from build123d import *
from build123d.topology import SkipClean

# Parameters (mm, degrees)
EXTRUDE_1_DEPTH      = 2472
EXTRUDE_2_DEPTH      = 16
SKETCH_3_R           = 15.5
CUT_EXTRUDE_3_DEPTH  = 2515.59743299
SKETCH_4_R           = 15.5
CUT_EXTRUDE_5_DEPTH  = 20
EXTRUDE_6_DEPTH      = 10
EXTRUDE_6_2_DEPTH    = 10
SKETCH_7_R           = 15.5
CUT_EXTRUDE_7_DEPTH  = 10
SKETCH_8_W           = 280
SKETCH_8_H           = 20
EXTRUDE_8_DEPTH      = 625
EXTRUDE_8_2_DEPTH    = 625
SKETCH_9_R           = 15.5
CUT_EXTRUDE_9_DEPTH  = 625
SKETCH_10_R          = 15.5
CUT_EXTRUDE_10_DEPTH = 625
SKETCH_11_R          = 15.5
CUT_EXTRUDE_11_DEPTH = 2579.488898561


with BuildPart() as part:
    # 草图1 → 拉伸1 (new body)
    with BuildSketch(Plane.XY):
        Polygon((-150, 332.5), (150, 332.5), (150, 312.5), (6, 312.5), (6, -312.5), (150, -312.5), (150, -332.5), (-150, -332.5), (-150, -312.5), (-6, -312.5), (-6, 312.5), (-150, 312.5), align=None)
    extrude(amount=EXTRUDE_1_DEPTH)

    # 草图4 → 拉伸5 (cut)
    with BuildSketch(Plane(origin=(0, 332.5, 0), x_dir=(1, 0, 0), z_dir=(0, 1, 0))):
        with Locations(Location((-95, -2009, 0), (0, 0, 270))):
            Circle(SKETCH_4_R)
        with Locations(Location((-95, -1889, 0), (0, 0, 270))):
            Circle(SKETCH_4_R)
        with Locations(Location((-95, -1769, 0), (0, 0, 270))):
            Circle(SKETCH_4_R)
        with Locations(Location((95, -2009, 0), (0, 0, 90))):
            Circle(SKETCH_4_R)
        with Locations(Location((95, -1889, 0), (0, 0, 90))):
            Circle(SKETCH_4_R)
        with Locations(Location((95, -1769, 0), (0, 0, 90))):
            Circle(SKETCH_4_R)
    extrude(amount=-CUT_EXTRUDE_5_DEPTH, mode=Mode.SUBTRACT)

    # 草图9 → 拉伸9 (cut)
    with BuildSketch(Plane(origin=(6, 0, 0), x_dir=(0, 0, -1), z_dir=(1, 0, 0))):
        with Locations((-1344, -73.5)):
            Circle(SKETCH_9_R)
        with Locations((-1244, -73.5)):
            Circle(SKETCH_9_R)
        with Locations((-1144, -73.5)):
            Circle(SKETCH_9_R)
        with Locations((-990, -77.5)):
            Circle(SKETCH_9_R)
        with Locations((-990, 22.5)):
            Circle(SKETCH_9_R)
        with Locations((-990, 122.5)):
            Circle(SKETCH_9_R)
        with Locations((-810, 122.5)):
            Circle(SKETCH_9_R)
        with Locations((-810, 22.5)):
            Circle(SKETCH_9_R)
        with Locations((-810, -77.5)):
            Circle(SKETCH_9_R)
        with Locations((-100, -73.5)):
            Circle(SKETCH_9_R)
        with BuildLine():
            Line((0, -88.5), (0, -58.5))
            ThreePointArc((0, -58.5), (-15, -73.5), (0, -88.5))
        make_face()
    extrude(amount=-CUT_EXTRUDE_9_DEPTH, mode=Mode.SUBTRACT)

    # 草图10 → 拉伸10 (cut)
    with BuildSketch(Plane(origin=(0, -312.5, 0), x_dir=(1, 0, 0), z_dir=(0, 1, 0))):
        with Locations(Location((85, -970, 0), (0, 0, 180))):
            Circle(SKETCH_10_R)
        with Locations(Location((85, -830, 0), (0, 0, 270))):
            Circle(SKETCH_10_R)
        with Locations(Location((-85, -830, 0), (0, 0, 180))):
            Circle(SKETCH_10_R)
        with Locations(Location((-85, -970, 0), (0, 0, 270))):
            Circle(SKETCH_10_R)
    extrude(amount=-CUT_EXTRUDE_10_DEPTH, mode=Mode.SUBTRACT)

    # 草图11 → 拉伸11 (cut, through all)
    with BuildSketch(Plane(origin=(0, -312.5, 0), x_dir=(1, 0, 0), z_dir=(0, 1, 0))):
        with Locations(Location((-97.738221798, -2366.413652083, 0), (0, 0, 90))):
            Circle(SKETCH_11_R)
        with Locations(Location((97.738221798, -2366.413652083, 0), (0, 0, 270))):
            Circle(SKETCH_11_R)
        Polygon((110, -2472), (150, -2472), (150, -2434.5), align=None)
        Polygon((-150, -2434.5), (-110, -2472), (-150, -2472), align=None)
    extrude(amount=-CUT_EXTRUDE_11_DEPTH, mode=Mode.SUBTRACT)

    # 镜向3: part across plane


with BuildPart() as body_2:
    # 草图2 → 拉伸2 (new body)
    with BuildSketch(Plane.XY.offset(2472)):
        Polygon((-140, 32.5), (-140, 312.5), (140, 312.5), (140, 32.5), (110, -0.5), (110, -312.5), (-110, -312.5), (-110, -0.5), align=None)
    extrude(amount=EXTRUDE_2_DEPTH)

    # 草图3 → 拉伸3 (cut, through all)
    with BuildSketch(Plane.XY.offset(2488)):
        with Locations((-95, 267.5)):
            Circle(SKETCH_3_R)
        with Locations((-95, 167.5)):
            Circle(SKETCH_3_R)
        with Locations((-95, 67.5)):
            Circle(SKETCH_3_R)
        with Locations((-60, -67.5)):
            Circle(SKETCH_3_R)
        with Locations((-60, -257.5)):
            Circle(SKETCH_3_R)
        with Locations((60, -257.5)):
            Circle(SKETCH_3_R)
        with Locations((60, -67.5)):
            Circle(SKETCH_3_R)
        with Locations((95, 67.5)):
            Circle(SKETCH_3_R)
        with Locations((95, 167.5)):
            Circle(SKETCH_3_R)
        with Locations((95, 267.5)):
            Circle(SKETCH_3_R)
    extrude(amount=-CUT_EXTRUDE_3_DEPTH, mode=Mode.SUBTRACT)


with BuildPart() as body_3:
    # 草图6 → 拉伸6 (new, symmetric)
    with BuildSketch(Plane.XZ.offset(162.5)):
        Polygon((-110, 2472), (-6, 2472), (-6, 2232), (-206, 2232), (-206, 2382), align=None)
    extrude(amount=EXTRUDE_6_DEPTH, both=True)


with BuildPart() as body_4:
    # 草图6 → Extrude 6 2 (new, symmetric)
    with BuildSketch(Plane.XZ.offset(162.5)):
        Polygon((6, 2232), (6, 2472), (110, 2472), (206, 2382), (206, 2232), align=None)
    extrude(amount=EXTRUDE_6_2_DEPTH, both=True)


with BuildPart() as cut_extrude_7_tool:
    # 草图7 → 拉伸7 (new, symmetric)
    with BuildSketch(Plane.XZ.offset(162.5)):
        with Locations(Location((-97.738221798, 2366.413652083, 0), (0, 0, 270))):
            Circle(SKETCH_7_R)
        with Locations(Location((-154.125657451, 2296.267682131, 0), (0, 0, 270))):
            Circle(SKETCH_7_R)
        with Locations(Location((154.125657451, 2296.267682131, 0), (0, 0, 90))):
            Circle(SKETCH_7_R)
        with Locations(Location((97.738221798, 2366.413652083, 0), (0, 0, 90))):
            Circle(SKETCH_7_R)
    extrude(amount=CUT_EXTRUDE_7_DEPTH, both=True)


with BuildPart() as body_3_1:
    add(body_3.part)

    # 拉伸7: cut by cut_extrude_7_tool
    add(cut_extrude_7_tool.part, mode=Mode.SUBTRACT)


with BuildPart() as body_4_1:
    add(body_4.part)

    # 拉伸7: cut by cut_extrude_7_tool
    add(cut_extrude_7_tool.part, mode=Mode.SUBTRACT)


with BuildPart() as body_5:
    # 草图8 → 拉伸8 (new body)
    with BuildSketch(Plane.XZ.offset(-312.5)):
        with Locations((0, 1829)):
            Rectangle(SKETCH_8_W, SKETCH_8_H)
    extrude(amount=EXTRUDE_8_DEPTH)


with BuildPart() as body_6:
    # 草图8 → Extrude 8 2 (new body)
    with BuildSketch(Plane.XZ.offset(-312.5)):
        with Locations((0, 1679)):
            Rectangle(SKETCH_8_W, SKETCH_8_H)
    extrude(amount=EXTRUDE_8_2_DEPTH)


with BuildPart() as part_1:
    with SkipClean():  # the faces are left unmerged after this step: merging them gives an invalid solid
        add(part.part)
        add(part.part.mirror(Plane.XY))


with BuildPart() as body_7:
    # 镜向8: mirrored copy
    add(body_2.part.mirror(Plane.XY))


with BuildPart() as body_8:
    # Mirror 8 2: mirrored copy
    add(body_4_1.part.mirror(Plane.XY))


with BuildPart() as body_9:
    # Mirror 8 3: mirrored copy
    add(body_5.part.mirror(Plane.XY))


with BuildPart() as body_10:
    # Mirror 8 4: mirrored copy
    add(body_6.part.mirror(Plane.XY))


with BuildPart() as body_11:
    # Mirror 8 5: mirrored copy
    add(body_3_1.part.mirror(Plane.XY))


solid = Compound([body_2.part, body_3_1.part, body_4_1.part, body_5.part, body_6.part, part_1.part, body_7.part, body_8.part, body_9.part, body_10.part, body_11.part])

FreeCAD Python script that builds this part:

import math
import FreeCAD as App
import Part
import Sketcher
from FreeCAD import Vector

doc = App.newDocument("Part")
body = doc.addObject("PartDesign::Body", "Body")

# Sketch on XY plane
sketch1 = body.newObject("Sketcher::SketchObject", "Sketch")
sketch1.AttachmentSupport = (doc.getObject("XY_Plane"), [""])
sketch1.MapMode = "FlatFace"
sketch1.addGeometry(Part.LineSegment(Vector(150, 332, 0), Vector(-150, 332, 0)), False)
sketch1.addGeometry(Part.LineSegment(Vector(-150, 332, 0), Vector(-150, 312, 0)), False)
sketch1.addGeometry(Part.LineSegment(Vector(-150, 312, 0), Vector(-6, 312, 0)), False)
sketch1.addGeometry(Part.LineSegment(Vector(-6, 312, 0), Vector(-6, -312, 0)), False)
sketch1.addGeometry(Part.LineSegment(Vector(-6, -312, 0), Vector(-150, -312, 0)), False)
sketch1.addGeometry(Part.LineSegment(Vector(-150, -312, 0), Vector(-150, -332, 0)), False)
sketch1.addGeometry(Part.LineSegment(Vector(-150, -332, 0), Vector(150, -332, 0)), False)
sketch1.addGeometry(Part.LineSegment(Vector(150, -332, 0), Vector(150, -312, 0)), False)
sketch1.addGeometry(Part.LineSegment(Vector(150, -312, 0), Vector(6, -312, 0)), False)
sketch1.addGeometry(Part.LineSegment(Vector(6, -312, 0), Vector(6, 312, 0)), False)
sketch1.addGeometry(Part.LineSegment(Vector(6, 312, 0), Vector(150, 312, 0)), False)
sketch1.addGeometry(Part.LineSegment(Vector(150, 312, 0), Vector(150, 332, 0)), False)
sketch1.addConstraint(Sketcher.Constraint("Coincident", 0, 2, 1, 1))
sketch1.addConstraint(Sketcher.Constraint("Coincident", 1, 2, 2, 1))
sketch1.addConstraint(Sketcher.Constraint("Coincident", 2, 2, 3, 1))
sketch1.addConstraint(Sketcher.Constraint("Coincident", 3, 2, 4, 1))
sketch1.addConstraint(Sketcher.Constraint("Coincident", 4, 2, 5, 1))
sketch1.addConstraint(Sketcher.Constraint("Coincident", 5, 2, 6, 1))
sketch1.addConstraint(Sketcher.Constraint("Coincident", 6, 2, 7, 1))
sketch1.addConstraint(Sketcher.Constraint("Coincident", 7, 2, 8, 1))
sketch1.addConstraint(Sketcher.Constraint("Coincident", 8, 2, 9, 1))
sketch1.addConstraint(Sketcher.Constraint("Coincident", 9, 2, 10, 1))
sketch1.addConstraint(Sketcher.Constraint("Coincident", 10, 2, 11, 1))
sketch1.addConstraint(Sketcher.Constraint("Coincident", 11, 2, 0, 1))
sketch1.addConstraint(Sketcher.Constraint("Horizontal", 0))
sketch1.addConstraint(Sketcher.Constraint("Vertical", 1))
sketch1.addConstraint(Sketcher.Constraint("Horizontal", 2))
sketch1.addConstraint(Sketcher.Constraint("Vertical", 3))
sketch1.addConstraint(Sketcher.Constraint("Horizontal", 4))
sketch1.addConstraint(Sketcher.Constraint("Vertical", 5))
sketch1.addConstraint(Sketcher.Constraint("Horizontal", 6))
sketch1.addConstraint(Sketcher.Constraint("Vertical", 7))
sketch1.addConstraint(Sketcher.Constraint("Horizontal", 8))
sketch1.addConstraint(Sketcher.Constraint("Vertical", 9))
sketch1.addConstraint(Sketcher.Constraint("Horizontal", 10))
sketch1.addConstraint(Sketcher.Constraint("Vertical", 11))
sketch1.addConstraint(Sketcher.Constraint("Symmetric", 0, 2, 6, 2, -1, 1))
sketch1.addConstraint(Sketcher.Constraint("Symmetric", 2, 2, 8, 2, -1, 1))
sketch1.addConstraint(Sketcher.Constraint("Symmetric", 4, 2, 10, 2, -1, 1))
sketch1.addConstraint(Sketcher.Constraint("Symmetric", 4, 2, 7, 2, -2))
sketch1.addConstraint(Sketcher.Constraint("DistanceX", 0, 2, 0, 1, 300.0))
sketch1.addConstraint(Sketcher.Constraint("DistanceX", 2, 1, 2, 2, 144.0))
sketch1.addConstraint(Sketcher.Constraint("DistanceY", 1, 2, 1, 1, 20.0))
sketch1.addConstraint(Sketcher.Constraint("DistanceY", 3, 2, 3, 1, 625.0))
pad1 = body.newObject("PartDesign::Pad", "Pad")
pad1.Profile = sketch1
pad1.Length = 2472

# Sketch on XZ plane
sketch2 = body.newObject("Sketcher::SketchObject", "Sketch001")
sketch2.AttachmentSupport = (doc.getObject("XZ_Plane"), [""])
sketch2.MapMode = "FlatFace"
sketch2.AttachmentOffset = App.Placement(Vector(0, 0, -332.5), App.Rotation())
sketch2.addGeometry(Part.Circle(Vector(-95, 2009, 0), Vector(0, 0, 1), 16), False)
sketch2.addGeometry(Part.Circle(Vector(-95, 1889, 0), Vector(0, 0, 1), 16), False)
sketch2.addGeometry(Part.Circle(Vector(-95, 1769, 0), Vector(0, 0, 1), 16), False)
sketch2.addGeometry(Part.Circle(Vector(95, 2009, 0), Vector(0, 0, 1), 16), False)
sketch2.addGeometry(Part.Circle(Vector(95, 1889, 0), Vector(0, 0, 1), 16), False)
sketch2.addGeometry(Part.Circle(Vector(95, 1769, 0), Vector(0, 0, 1), 16), False)
sketch2.addConstraint(Sketcher.Constraint("Equal", 0, 1))
sketch2.addConstraint(Sketcher.Constraint("Equal", 1, 2))
sketch2.addConstraint(Sketcher.Constraint("Equal", 2, 3))
sketch2.addConstraint(Sketcher.Constraint("Equal", 3, 4))
sketch2.addConstraint(Sketcher.Constraint("Equal", 4, 5))
sketch2.addConstraint(Sketcher.Constraint("Symmetric", 0, 3, 3, 3, -2))
sketch2.addConstraint(Sketcher.Constraint("Symmetric", 1, 3, 4, 3, -2))
sketch2.addConstraint(Sketcher.Constraint("Symmetric", 2, 3, 5, 3, -2))
sketch2.addConstraint(Sketcher.Constraint("Vertical", 0, 3, 1, 3))
sketch2.addConstraint(Sketcher.Constraint("Vertical", 1, 3, 2, 3))
sketch2.addConstraint(Sketcher.Constraint("Diameter", 0, 31.0))
sketch2.addConstraint(Sketcher.Constraint("DistanceX", 0, 3, -1, 1, 95.0))
sketch2.addConstraint(Sketcher.Constraint("DistanceY", -1, 1, 0, 3, 2009.0))
sketch2.addConstraint(Sketcher.Constraint("DistanceY", -1, 1, 1, 3, 1889.0))
sketch2.addConstraint(Sketcher.Constraint("DistanceY", -1, 1, 2, 3, 1769.0))
pocket1 = body.newObject("PartDesign::Pocket", "Pocket")
pocket1.Profile = sketch2
pocket1.Length = 20
pocket1.Reversed = True

# Sketch on YZ plane
sketch3 = body.newObject("Sketcher::SketchObject", "Sketch002")
sketch3.AttachmentSupport = (doc.getObject("YZ_Plane"), [""])
sketch3.MapMode = "FlatFace"
sketch3.AttachmentOffset = App.Placement(Vector(0, 0, 6), App.Rotation())
sketch3.addGeometry(Part.Circle(Vector(-74, 1344, 0), Vector(0, 0, 1), 16), False)
sketch3.addGeometry(Part.Circle(Vector(-74, 1244, 0), Vector(0, 0, 1), 16), False)
sketch3.addGeometry(Part.Circle(Vector(-74, 1144, 0), Vector(0, 0, 1), 16), False)
sketch3.addGeometry(Part.Circle(Vector(-78, 990, 0), Vector(0, 0, 1), 16), False)
sketch3.addGeometry(Part.Circle(Vector(22, 990, 0), Vector(0, 0, 1), 16), False)
sketch3.addGeometry(Part.Circle(Vector(122, 990, 0), Vector(0, 0, 1), 16), False)
sketch3.addGeometry(Part.Circle(Vector(122, 810, 0), Vector(0, 0, 1), 16), False)
sketch3.addGeometry(Part.Circle(Vector(22, 810, 0), Vector(0, 0, 1), 16), False)
sketch3.addGeometry(Part.Circle(Vector(-78, 810, 0), Vector(0, 0, 1), 16), False)
sketch3.addGeometry(Part.Circle(Vector(-74, 100, 0), Vector(0, 0, 1), 16), False)
sketch3.addGeometry(Part.LineSegment(Vector(-88, 0, 0), Vector(-58, 0, 0)), False)
sketch3.addGeometry(Part.ArcOfCircle(Part.Circle(Vector(-74, 0, 0), Vector(0, 0, 1), 15), math.radians(0), math.radians(180)), False)
sketch3.addConstraint(Sketcher.Constraint("Coincident", 10, 1, 11, 2))
sketch3.addConstraint(Sketcher.Constraint("Coincident", 11, 1, 10, 2))
sketch3.addConstraint(Sketcher.Constraint("Horizontal", 10))
sketch3.addConstraint(Sketcher.Constraint("Equal", 0, 1))
sketch3.addConstraint(Sketcher.Constraint("Equal", 1, 2))
sketch3.addConstraint(Sketcher.Constraint("Equal", 2, 3))
sketch3.addConstraint(Sketcher.Constraint("Equal", 3, 4))
sketch3.addConstraint(Sketcher.Constraint("Equal", 4, 5))
sketch3.addConstraint(Sketcher.Constraint("Equal", 5, 6))
sketch3.addConstraint(Sketcher.Constraint("Equal", 6, 7))
sketch3.addConstraint(Sketcher.Constraint("Equal", 7, 8))
sketch3.addConstraint(Sketcher.Constraint("Equal", 8, 9))
sketch3.addConstraint(Sketcher.Constraint("PointOnObject", 11, 3, -1))
sketch3.addConstraint(Sketcher.Constraint("PointOnObject", 10, 1, -1))
sketch3.addConstraint(Sketcher.Constraint("Horizontal", 3, 3, 4, 3))
sketch3.addConstraint(Sketcher.Constraint("Horizontal", 4, 3, 5, 3))
sketch3.addConstraint(Sketcher.Constraint("Horizontal", 6, 3, 7, 3))
sketch3.addConstraint(Sketcher.Constraint("Horizontal", 7, 3, 8, 3))
sketch3.addConstraint(Sketcher.Constraint("Vertical", 0, 3, 1, 3))
sketch3.addConstraint(Sketcher.Constraint("Vertical", 1, 3, 2, 3))
sketch3.addConstraint(Sketcher.Constraint("Vertical", 5, 3, 6, 3))
sketch3.addConstraint(Sketcher.Constraint("Vertical", 4, 3, 7, 3))
sketch3.addConstraint(Sketcher.Constraint("Vertical", 3, 3, 8, 3))
sketch3.addConstraint(Sketcher.Constraint("Vertical", 2, 3, 9, 3))
sketch3.addConstraint(Sketcher.Constraint("Vertical", 9, 3, 11, 3))
sketch3.addConstraint(Sketcher.Constraint("Diameter", 0, 31.0))
sketch3.addConstraint(Sketcher.Constraint("Radius", 11, 15.0))
sketch3.addConstraint(Sketcher.Constraint("DistanceY", -1, 1, 0, 3, 1344.0))
sketch3.addConstraint(Sketcher.Constraint("DistanceY", -1, 1, 1, 3, 1244.0))
sketch3.addConstraint(Sketcher.Constraint("DistanceY", -1, 1, 2, 3, 1144.0))
sketch3.addConstraint(Sketcher.Constraint("DistanceY", -1, 1, 3, 3, 990.0))
sketch3.addConstraint(Sketcher.Constraint("DistanceY", -1, 1, 6, 3, 810.0))
sketch3.addConstraint(Sketcher.Constraint("DistanceY", -1, 1, 9, 3, 100.0))
sketch3.addConstraint(Sketcher.Constraint("DistanceX", 3, 3, 2, 3, 4.0))
sketch3.addConstraint(Sketcher.Constraint("DistanceX", 3, 3, 4, 3, 100.0))
sketch3.addConstraint(Sketcher.Constraint("DistanceX", 4, 3, 5, 3, 100.0))
sketch3.addConstraint(Sketcher.Constraint("DistanceX", 0, 3, -1, 1, 73.5))
pocket2 = body.newObject("PartDesign::Pocket", "Pocket001")
pocket2.Profile = sketch3
pocket2.Length = 625

# Sketch on XZ plane
sketch4 = body.newObject("Sketcher::SketchObject", "Sketch003")
sketch4.AttachmentSupport = (doc.getObject("XZ_Plane"), [""])
sketch4.MapMode = "FlatFace"
sketch4.AttachmentOffset = App.Placement(Vector(0, 0, 312.5), App.Rotation())
sketch4.addGeometry(Part.Circle(Vector(85, 970, 0), Vector(0, 0, 1), 16), False)
sketch4.addGeometry(Part.Circle(Vector(85, 830, 0), Vector(0, 0, 1), 16), False)
sketch4.addGeometry(Part.Circle(Vector(-85, 830, 0), Vector(0, 0, 1), 16), False)
sketch4.addGeometry(Part.Circle(Vector(-85, 970, 0), Vector(0, 0, 1), 16), False)
sketch4.addConstraint(Sketcher.Constraint("Equal", 0, 1))
sketch4.addConstraint(Sketcher.Constraint("Equal", 1, 2))
sketch4.addConstraint(Sketcher.Constraint("Equal", 2, 3))
sketch4.addConstraint(Sketcher.Constraint("Symmetric", 1, 3, 2, 3, -2))
sketch4.addConstraint(Sketcher.Constraint("Symmetric", 0, 3, 3, 3, -2))
sketch4.addConstraint(Sketcher.Constraint("Vertical", 0, 3, 1, 3))
sketch4.addConstraint(Sketcher.Constraint("Diameter", 0, 31.0))
sketch4.addConstraint(Sketcher.Constraint("DistanceX", -1, 1, 0, 3, 85.0))
sketch4.addConstraint(Sketcher.Constraint("DistanceY", -1, 1, 0, 3, 970.0))
sketch4.addConstraint(Sketcher.Constraint("DistanceY", -1, 1, 1, 3, 830.0))
pocket3 = body.newObject("PartDesign::Pocket", "Pocket002")
pocket3.Profile = sketch4
pocket3.Length = 625
pocket3.Reversed = True

# Sketch on XZ plane
sketch5 = body.newObject("Sketcher::SketchObject", "Sketch004")
sketch5.AttachmentSupport = (doc.getObject("XZ_Plane"), [""])
sketch5.MapMode = "FlatFace"
sketch5.AttachmentOffset = App.Placement(Vector(0, 0, 312.5), App.Rotation())
sketch5.addGeometry(Part.Circle(Vector(-98, 2366, 0), Vector(0, 0, 1), 16), False)
sketch5.addGeometry(Part.Circle(Vector(98, 2366, 0), Vector(0, 0, 1), 16), False)
sketch5.addGeometry(Part.LineSegment(Vector(110, 2472, 0), Vector(150, 2472, 0)), False)
sketch5.addGeometry(Part.LineSegment(Vector(150, 2472, 0), Vector(150, 2434, 0)), False)
sketch5.addGeometry(Part.LineSegment(Vector(150, 2434, 0), Vector(110, 2472, 0)), False)
sketch5.addGeometry(Part.LineSegment(Vector(-110, 2472, 0), Vector(-150, 2434, 0)), False)
sketch5.addGeometry(Part.LineSegment(Vector(-150, 2434, 0), Vector(-150, 2472, 0)), False)
sketch5.addGeometry(Part.LineSegment(Vector(-150, 2472, 0), Vector(-110, 2472, 0)), False)
sketch5.addConstraint(Sketcher.Constraint("Coincident", 2, 2, 3, 1))
sketch5.addConstraint(Sketcher.Constraint("Coincident", 3, 2, 4, 1))
sketch5.addConstraint(Sketcher.Constraint("Coincident", 4, 2, 2, 1))
sketch5.addConstraint(Sketcher.Constraint("Coincident", 5, 2, 6, 1))
sketch5.addConstraint(Sketcher.Constraint("Coincident", 6, 2, 7, 1))
sketch5.addConstraint(Sketcher.Constraint("Coincident", 7, 2, 5, 1))
sketch5.addConstraint(Sketcher.Constraint("Horizontal", 2))
sketch5.addConstraint(Sketcher.Constraint("Vertical", 3))
sketch5.addConstraint(Sketcher.Constraint("Vertical", 6))
sketch5.addConstraint(Sketcher.Constraint("Horizontal", 7))
sketch5.addConstraint(Sketcher.Constraint("Equal", 0, 1))
sketch5.addConstraint(Sketcher.Constraint("Symmetric", 0, 3, 1, 3, -2))
sketch5.addConstraint(Sketcher.Constraint("Symmetric", 3, 2, 5, 2, -2))
sketch5.addConstraint(Sketcher.Constraint("Symmetric", 4, 2, 7, 2, -2))
sketch5.addConstraint(Sketcher.Constraint("Diameter", 0, 31.0))
sketch5.addConstraint(Sketcher.Constraint("DistanceX", 2, 1, 2, 2, 40.0))
sketch5.addConstraint(Sketcher.Constraint("DistanceY", 3, 2, 3, 1, 37.5))
sketch5.addConstraint(Sketcher.Constraint("DistanceX", -1, 1, 2, 2, 150.0))
sketch5.addConstraint(Sketcher.Constraint("DistanceY", -1, 1, 2, 2, 2472.0))
sketch5.addConstraint(Sketcher.Constraint("DistanceX", 0, 3, -1, 1, 97.738222))
sketch5.addConstraint(Sketcher.Constraint("DistanceY", -1, 1, 0, 3, 2366.413652))
pocket4 = body.newObject("PartDesign::Pocket", "Pocket003")
pocket4.Profile = sketch5
pocket4.Type = "ThroughAll"
pocket4.Reversed = True
body2 = doc.addObject("PartDesign::Body", "Body001")

# Sketch on XY plane
sketch6 = body2.newObject("Sketcher::SketchObject", "Sketch005")
sketch6.AttachmentSupport = (doc.getObject("XY_Plane001"), [""])
sketch6.MapMode = "FlatFace"
sketch6.AttachmentOffset = App.Placement(Vector(0, 0, 2472), App.Rotation())
sketch6.addGeometry(Part.LineSegment(Vector(-140, 312, 0), Vector(-140, 32, 0)), False)
sketch6.addGeometry(Part.LineSegment(Vector(-140, 32, 0), Vector(-110, 0, 0)), False)
sketch6.addGeometry(Part.LineSegment(Vector(-110, 0, 0), Vector(-110, -312, 0)), False)
sketch6.addGeometry(Part.LineSegment(Vector(-110, -312, 0), Vector(110, -312, 0)), False)
sketch6.addGeometry(Part.LineSegment(Vector(110, -312, 0), Vector(110, 0, 0)), False)
sketch6.addGeometry(Part.LineSegment(Vector(110, 0, 0), Vector(140, 32, 0)), False)
sketch6.addGeometry(Part.LineSegment(Vector(140, 32, 0), Vector(140, 312, 0)), False)
sketch6.addGeometry(Part.LineSegment(Vector(140, 312, 0), Vector(-140, 312, 0)), False)
sketch6.addConstraint(Sketcher.Constraint("Coincident", 0, 2, 1, 1))
sketch6.addConstraint(Sketcher.Constraint("Coincident", 1, 2, 2, 1))
sketch6.addConstraint(Sketcher.Constraint("Coincident", 2, 2, 3, 1))
sketch6.addConstraint(Sketcher.Constraint("Coincident", 3, 2, 4, 1))
sketch6.addConstraint(Sketcher.Constraint("Coincident", 4, 2, 5, 1))
sketch6.addConstraint(Sketcher.Constraint("Coincident", 5, 2, 6, 1))
sketch6.addConstraint(Sketcher.Constraint("Coincident", 6, 2, 7, 1))
sketch6.addConstraint(Sketcher.Constraint("Coincident", 7, 2, 0, 1))
sketch6.addConstraint(Sketcher.Constraint("Vertical", 0))
sketch6.addConstraint(Sketcher.Constraint("Vertical", 2))
sketch6.addConstraint(Sketcher.Constraint("Horizontal", 3))
sketch6.addConstraint(Sketcher.Constraint("Vertical", 4))
sketch6.addConstraint(Sketcher.Constraint("Vertical", 6))
sketch6.addConstraint(Sketcher.Constraint("Horizontal", 7))
sketch6.addConstraint(Sketcher.Constraint("Symmetric", 1, 2, 4, 2, -2))
sketch6.addConstraint(Sketcher.Constraint("Symmetric", 0, 2, 5, 2, -2))
sketch6.addConstraint(Sketcher.Constraint("Equal", 7, 0))
sketch6.addConstraint(Sketcher.Constraint("DistanceX", 3, 1, 3, 2, 220.0))
sketch6.addConstraint(Sketcher.Constraint("DistanceX", 7, 2, 7, 1, 280.0))
sketch6.addConstraint(Sketcher.Constraint("DistanceY", 2, 2, 2, 1, 312.0))
sketch6.addConstraint(Sketcher.Constraint("DistanceY", 1, 2, 0, 2, 33.0))
sketch6.addConstraint(Sketcher.Constraint("DistanceY", -1, 1, 0, 2, 32.5))
pad2 = body2.newObject("PartDesign::Pad", "Pad001")
pad2.Profile = sketch6
pad2.Length = 16

# Sketch on XY plane
sketch7 = body2.newObject("Sketcher::SketchObject", "Sketch006")
sketch7.AttachmentSupport = (doc.getObject("XY_Plane001"), [""])
sketch7.MapMode = "FlatFace"
sketch7.AttachmentOffset = App.Placement(Vector(0, 0, 2488), App.Rotation())
sketch7.addGeometry(Part.Circle(Vector(-95, 268, 0), Vector(0, 0, 1), 16), False)
sketch7.addGeometry(Part.Circle(Vector(-95, 168, 0), Vector(0, 0, 1), 16), False)
sketch7.addGeometry(Part.Circle(Vector(-95, 68, 0), Vector(0, 0, 1), 16), False)
sketch7.addGeometry(Part.Circle(Vector(-60, -68, 0), Vector(0, 0, 1), 16), False)
sketch7.addGeometry(Part.Circle(Vector(-60, -258, 0), Vector(0, 0, 1), 16), False)
sketch7.addGeometry(Part.Circle(Vector(60, -258, 0), Vector(0, 0, 1), 16), False)
sketch7.addGeometry(Part.Circle(Vector(60, -68, 0), Vector(0, 0, 1), 16), False)
sketch7.addGeometry(Part.Circle(Vector(95, 68, 0), Vector(0, 0, 1), 16), False)
sketch7.addGeometry(Part.Circle(Vector(95, 168, 0), Vector(0, 0, 1), 16), False)
sketch7.addGeometry(Part.Circle(Vector(95, 268, 0), Vector(0, 0, 1), 16), False)
sketch7.addConstraint(Sketcher.Constraint("Equal", 0, 1))
sketch7.addConstraint(Sketcher.Constraint("Equal", 1, 2))
sketch7.addConstraint(Sketcher.Constraint("Equal", 2, 3))
sketch7.addConstraint(Sketcher.Constraint("Equal", 3, 4))
sketch7.addConstraint(Sketcher.Constraint("Equal", 4, 5))
sketch7.addConstraint(Sketcher.Constraint("Equal", 5, 6))
sketch7.addConstraint(Sketcher.Constraint("Equal", 6, 7))
sketch7.addConstraint(Sketcher.Constraint("Equal", 7, 8))
sketch7.addConstraint(Sketcher.Constraint("Equal", 8, 9))
sketch7.addConstraint(Sketcher.Constraint("Symmetric", 4, 3, 5, 3, -2))
sketch7.addConstraint(Sketcher.Constraint("Symmetric", 3, 3, 6, 3, -2))
sketch7.addConstraint(Sketcher.Constraint("Symmetric", 2, 3, 7, 3, -2))
sketch7.addConstraint(Sketcher.Constraint("Symmetric", 1, 3, 8, 3, -2))
sketch7.addConstraint(Sketcher.Constraint("Symmetric", 0, 3, 9, 3, -2))
sketch7.addConstraint(Sketcher.Constraint("Vertical", 0, 3, 1, 3))
sketch7.addConstraint(Sketcher.Constraint("Vertical", 1, 3, 2, 3))
sketch7.addConstraint(Sketcher.Constraint("Vertical", 3, 3, 4, 3))
sketch7.addConstraint(Sketcher.Constraint("Diameter", 0, 31.0))
sketch7.addConstraint(Sketcher.Constraint("DistanceX", 0, 3, -1, 1, 95.0))
sketch7.addConstraint(Sketcher.Constraint("DistanceX", 3, 3, -1, 1, 60.0))
sketch7.addConstraint(Sketcher.Constraint("DistanceY", 1, 3, 0, 3, 100.0))
sketch7.addConstraint(Sketcher.Constraint("DistanceY", 2, 3, 1, 3, 100.0))
sketch7.addConstraint(Sketcher.Constraint("DistanceY", 3, 3, 2, 3, 135.0))
sketch7.addConstraint(Sketcher.Constraint("DistanceY", 4, 3, 3, 3, 190.0))
sketch7.addConstraint(Sketcher.Constraint("DistanceY", -1, 1, 0, 3, 267.5))
pocket5 = body2.newObject("PartDesign::Pocket", "Pocket004")
pocket5.Profile = sketch7
pocket5.Type = "ThroughAll"
body3 = doc.addObject("PartDesign::Body", "Body002")

# Sketch on XZ plane
sketch8 = body3.newObject("Sketcher::SketchObject", "Sketch007")
sketch8.AttachmentSupport = (doc.getObject("XZ_Plane002"), [""])
sketch8.MapMode = "FlatFace"
sketch8.AttachmentOffset = App.Placement(Vector(0, 0, 162.5), App.Rotation())
sketch8.addGeometry(Part.LineSegment(Vector(-6, 2472, 0), Vector(-110, 2472, 0)), False)
sketch8.addGeometry(Part.LineSegment(Vector(-110, 2472, 0), Vector(-206, 2382, 0)), False)
sketch8.addGeometry(Part.LineSegment(Vector(-206, 2382, 0), Vector(-206, 2232, 0)), False)
sketch8.addGeometry(Part.LineSegment(Vector(-206, 2232, 0), Vector(-6, 2232, 0)), False)
sketch8.addGeometry(Part.LineSegment(Vector(-6, 2232, 0), Vector(-6, 2472, 0)), False)
sketch8.addConstraint(Sketcher.Constraint("Coincident", 0, 2, 1, 1))
sketch8.addConstraint(Sketcher.Constraint("Coincident", 1, 2, 2, 1))
sketch8.addConstraint(Sketcher.Constraint("Coincident", 2, 2, 3, 1))
sketch8.addConstraint(Sketcher.Constraint("Coincident", 3, 2, 4, 1))
sketch8.addConstraint(Sketcher.Constraint("Coincident", 4, 2, 0, 1))
sketch8.addConstraint(Sketcher.Constraint("Horizontal", 0))
sketch8.addConstraint(Sketcher.Constraint("Vertical", 2))
sketch8.addConstraint(Sketcher.Constraint("Horizontal", 3))
sketch8.addConstraint(Sketcher.Constraint("Vertical", 4))
sketch8.addConstraint(Sketcher.Constraint("DistanceX", 0, 2, 0, 1, 104.0))
sketch8.addConstraint(Sketcher.Constraint("DistanceX", 3, 1, 3, 2, 200.0))
sketch8.addConstraint(Sketcher.Constraint("DistanceY", 2, 2, 2, 1, 150.0))
sketch8.addConstraint(Sketcher.Constraint("DistanceY", 4, 1, 4, 2, 240.0))
sketch8.addConstraint(Sketcher.Constraint("DistanceX", 0, 2, -1, 1, 110.0))
sketch8.addConstraint(Sketcher.Constraint("DistanceY", -1, 1, 0, 2, 2472.0))
pad3 = body3.newObject("PartDesign::Pad", "Pad002")
pad3.Profile = sketch8
pad3.Length = 20
pad3.Midplane = True
body4 = doc.addObject("PartDesign::Body", "Body003")

# Sketch on XZ plane
sketch9 = body4.newObject("Sketcher::SketchObject", "Sketch008")
sketch9.AttachmentSupport = (doc.getObject("XZ_Plane003"), [""])
sketch9.MapMode = "FlatFace"
sketch9.AttachmentOffset = App.Placement(Vector(0, 0, 162.5), App.Rotation())
sketch9.addGeometry(Part.LineSegment(Vector(6, 2472, 0), Vector(6, 2232, 0)), False)
sketch9.addGeometry(Part.LineSegment(Vector(6, 2232, 0), Vector(206, 2232, 0)), False)
sketch9.addGeometry(Part.LineSegment(Vector(206, 2232, 0), Vector(206, 2382, 0)), False)
sketch9.addGeometry(Part.LineSegment(Vector(206, 2382, 0), Vector(110, 2472, 0)), False)
sketch9.addGeometry(Part.LineSegment(Vector(110, 2472, 0), Vector(6, 2472, 0)), False)
sketch9.addConstraint(Sketcher.Constraint("Coincident", 0, 2, 1, 1))
sketch9.addConstraint(Sketcher.Constraint("Coincident", 1, 2, 2, 1))
sketch9.addConstraint(Sketcher.Constraint("Coincident", 2, 2, 3, 1))
sketch9.addConstraint(Sketcher.Constraint("Coincident", 3, 2, 4, 1))
sketch9.addConstraint(Sketcher.Constraint("Coincident", 4, 2, 0, 1))
sketch9.addConstraint(Sketcher.Constraint("Vertical", 0))
sketch9.addConstraint(Sketcher.Constraint("Horizontal", 1))
sketch9.addConstraint(Sketcher.Constraint("Vertical", 2))
sketch9.addConstraint(Sketcher.Constraint("Horizontal", 4))
sketch9.addConstraint(Sketcher.Constraint("DistanceX", 1, 1, 1, 2, 200.0))
sketch9.addConstraint(Sketcher.Constraint("DistanceX", 4, 2, 4, 1, 104.0))
sketch9.addConstraint(Sketcher.Constraint("DistanceY", 0, 2, 0, 1, 240.0))
sketch9.addConstraint(Sketcher.Constraint("DistanceY", 2, 1, 2, 2, 150.0))
sketch9.addConstraint(Sketcher.Constraint("DistanceX", -1, 1, 0, 2, 6.0))
sketch9.addConstraint(Sketcher.Constraint("DistanceY", -1, 1, 0, 2, 2232.0))
pad4 = body4.newObject("PartDesign::Pad", "Pad003")
pad4.Profile = sketch9
pad4.Length = 20
pad4.Midplane = True
body5 = doc.addObject("PartDesign::Body", "Body004")
body5.AllowCompound = True

# Sketch on XZ plane
sketch10 = body5.newObject("Sketcher::SketchObject", "Sketch009")
sketch10.AttachmentSupport = (doc.getObject("XZ_Plane004"), [""])
sketch10.MapMode = "FlatFace"
sketch10.AttachmentOffset = App.Placement(Vector(0, 0, 162.5), App.Rotation())
sketch10.addGeometry(Part.Circle(Vector(-98, 2366, 0), Vector(0, 0, 1), 16), False)
sketch10.addGeometry(Part.Circle(Vector(-154, 2296, 0), Vector(0, 0, 1), 16), False)
sketch10.addGeometry(Part.Circle(Vector(154, 2296, 0), Vector(0, 0, 1), 16), False)
sketch10.addGeometry(Part.Circle(Vector(98, 2366, 0), Vector(0, 0, 1), 16), False)
sketch10.addConstraint(Sketcher.Constraint("Equal", 0, 1))
sketch10.addConstraint(Sketcher.Constraint("Equal", 1, 2))
sketch10.addConstraint(Sketcher.Constraint("Equal", 2, 3))
sketch10.addConstraint(Sketcher.Constraint("Symmetric", 1, 3, 2, 3, -2))
sketch10.addConstraint(Sketcher.Constraint("Symmetric", 0, 3, 3, 3, -2))
sketch10.addConstraint(Sketcher.Constraint("Diameter", 0, 31.0))
sketch10.addConstraint(Sketcher.Constraint("DistanceX", 0, 3, -1, 1, 97.738222))
sketch10.addConstraint(Sketcher.Constraint("DistanceY", 1, 3, 0, 3, 70.14597))
sketch10.addConstraint(Sketcher.Constraint("DistanceX", 0, 3, 2, 3, 251.863879))
sketch10.addConstraint(Sketcher.Constraint("DistanceY", -1, 1, 0, 3, 2366.413652))
pad5 = body5.newObject("PartDesign::Pad", "Pad004")
pad5.Profile = sketch10
pad5.Length = 20
pad5.Midplane = True
doc.recompute()

body6 = doc.addObject("PartDesign::Body", "Body005")
body6.BaseFeature = body5
boolean = body3.newObject("PartDesign::Boolean", "Boolean")
boolean.Type = "Cut"
boolean.addObjects([body6])
doc.recompute()

boolean2 = body4.newObject("PartDesign::Boolean", "Boolean001")
boolean2.Type = "Cut"
boolean2.addObjects([body5])
body7 = doc.addObject("PartDesign::Body", "Body006")

# Sketch on XZ plane
sketch11 = body7.newObject("Sketcher::SketchObject", "Sketch010")
sketch11.AttachmentSupport = (doc.getObject("XZ_Plane006"), [""])
sketch11.MapMode = "FlatFace"
sketch11.AttachmentOffset = App.Placement(Vector(0, 0, -312.5), App.Rotation())
sketch11.addGeometry(Part.LineSegment(Vector(-140, 1839, 0), Vector(-140, 1819, 0)), False)
sketch11.addGeometry(Part.LineSegment(Vector(-140, 1819, 0), Vector(140, 1819, 0)), False)
sketch11.addGeometry(Part.LineSegment(Vector(140, 1819, 0), Vector(140, 1839, 0)), False)
sketch11.addGeometry(Part.LineSegment(Vector(140, 1839, 0), Vector(-140, 1839, 0)), False)
sketch11.addConstraint(Sketcher.Constraint("Coincident", 0, 2, 1, 1))
sketch11.addConstraint(Sketcher.Constraint("Coincident", 1, 2, 2, 1))
sketch11.addConstraint(Sketcher.Constraint("Coincident", 2, 2, 3, 1))
sketch11.addConstraint(Sketcher.Constraint("Coincident", 3, 2, 0, 1))
sketch11.addConstraint(Sketcher.Constraint("Vertical", 0))
sketch11.addConstraint(Sketcher.Constraint("Horizontal", 1))
sketch11.addConstraint(Sketcher.Constraint("Vertical", 2))
sketch11.addConstraint(Sketcher.Constraint("Horizontal", 3))
sketch11.addConstraint(Sketcher.Constraint("DistanceX", 1, 1, 1, 2, 280.0))
sketch11.addConstraint(Sketcher.Constraint("DistanceY", 0, 2, 0, 1, 20.0))
sketch11.addConstraint(Sketcher.Constraint("DistanceX", 0, 2, -1, 1, 140.0))
sketch11.addConstraint(Sketcher.Constraint("DistanceY", -1, 1, 0, 2, 1819.0))
pad6 = body7.newObject("PartDesign::Pad", "Pad005")
pad6.Profile = sketch11
pad6.Length = 625
body8 = doc.addObject("PartDesign::Body", "Body007")

# Sketch on XZ plane
sketch12 = body8.newObject("Sketcher::SketchObject", "Sketch011")
sketch12.AttachmentSupport = (doc.getObject("XZ_Plane007"), [""])
sketch12.MapMode = "FlatFace"
sketch12.AttachmentOffset = App.Placement(Vector(0, 0, -312.5), App.Rotation())
sketch12.addGeometry(Part.LineSegment(Vector(-140, 1689, 0), Vector(-140, 1669, 0)), False)
sketch12.addGeometry(Part.LineSegment(Vector(-140, 1669, 0), Vector(140, 1669, 0)), False)
sketch12.addGeometry(Part.LineSegment(Vector(140, 1669, 0), Vector(140, 1689, 0)), False)
sketch12.addGeometry(Part.LineSegment(Vector(140, 1689, 0), Vector(-140, 1689, 0)), False)
sketch12.addConstraint(Sketcher.Constraint("Coincident", 0, 2, 1, 1))
sketch12.addConstraint(Sketcher.Constraint("Coincident", 1, 2, 2, 1))
sketch12.addConstraint(Sketcher.Constraint("Coincident", 2, 2, 3, 1))
sketch12.addConstraint(Sketcher.Constraint("Coincident", 3, 2, 0, 1))
sketch12.addConstraint(Sketcher.Constraint("Vertical", 0))
sketch12.addConstraint(Sketcher.Constraint("Horizontal", 1))
sketch12.addConstraint(Sketcher.Constraint("Vertical", 2))
sketch12.addConstraint(Sketcher.Constraint("Horizontal", 3))
sketch12.addConstraint(Sketcher.Constraint("DistanceX", 1, 1, 1, 2, 280.0))
sketch12.addConstraint(Sketcher.Constraint("DistanceY", 0, 2, 0, 1, 20.0))
sketch12.addConstraint(Sketcher.Constraint("DistanceX", 0, 2, -1, 1, 140.0))
sketch12.addConstraint(Sketcher.Constraint("DistanceY", -1, 1, 0, 2, 1669.0))
pad7 = body8.newObject("PartDesign::Pad", "Pad006")
pad7.Profile = sketch12
pad7.Length = 625
body9 = doc.addObject("PartDesign::Body", "Body008")
doc.recompute()

body9.BaseFeature = body
doc.recompute()

mirroring = doc.addObject("Part::Mirroring", "Mirroring")
mirroring.Source = body
mirroring.Base = Vector(0, 0, 0)
mirroring.Normal = Vector(0, 0, 1)
body10 = doc.addObject("PartDesign::Body", "Body009")
body10.BaseFeature = mirroring
boolean3 = body9.newObject("PartDesign::Boolean", "Boolean002")
boolean3.Type = "Fuse"
boolean3.addObjects([body10])
doc.recompute()
body11 = doc.addObject("PartDesign::Body", "Body010")
doc.recompute()

mirroring2 = doc.addObject("Part::Mirroring", "Mirroring001")
mirroring2.Source = body2
mirroring2.Base = Vector(0, 0, 0)
mirroring2.Normal = Vector(0, 0, 1)
body11.BaseFeature = mirroring2
doc.recompute()
body12 = doc.addObject("PartDesign::Body", "Body011")
doc.recompute()

mirroring3 = doc.addObject("Part::Mirroring", "Mirroring002")
mirroring3.Source = body4
mirroring3.Base = Vector(0, 0, 0)
mirroring3.Normal = Vector(0, 0, 1)
body12.BaseFeature = mirroring3
doc.recompute()
body13 = doc.addObject("PartDesign::Body", "Body012")
doc.recompute()

mirroring4 = doc.addObject("Part::Mirroring", "Mirroring003")
mirroring4.Source = body7
mirroring4.Base = Vector(0, 0, 0)
mirroring4.Normal = Vector(0, 0, 1)
body13.BaseFeature = mirroring4
doc.recompute()
body14 = doc.addObject("PartDesign::Body", "Body013")
doc.recompute()

mirroring5 = doc.addObject("Part::Mirroring", "Mirroring004")
mirroring5.Source = body8
mirroring5.Base = Vector(0, 0, 0)
mirroring5.Normal = Vector(0, 0, 1)
body14.BaseFeature = mirroring5
doc.recompute()
body15 = doc.addObject("PartDesign::Body", "Body014")
doc.recompute()

mirroring6 = doc.addObject("Part::Mirroring", "Mirroring005")
mirroring6.Source = body3
mirroring6.Base = Vector(0, 0, 0)
mirroring6.Normal = Vector(0, 0, 1)
body15.BaseFeature = mirroring6
doc.recompute()
mirroring.Visibility = False
mirroring2.Visibility = False
mirroring3.Visibility = False
mirroring4.Visibility = False
mirroring5.Visibility = False
mirroring6.Visibility = False

doc.recompute()
